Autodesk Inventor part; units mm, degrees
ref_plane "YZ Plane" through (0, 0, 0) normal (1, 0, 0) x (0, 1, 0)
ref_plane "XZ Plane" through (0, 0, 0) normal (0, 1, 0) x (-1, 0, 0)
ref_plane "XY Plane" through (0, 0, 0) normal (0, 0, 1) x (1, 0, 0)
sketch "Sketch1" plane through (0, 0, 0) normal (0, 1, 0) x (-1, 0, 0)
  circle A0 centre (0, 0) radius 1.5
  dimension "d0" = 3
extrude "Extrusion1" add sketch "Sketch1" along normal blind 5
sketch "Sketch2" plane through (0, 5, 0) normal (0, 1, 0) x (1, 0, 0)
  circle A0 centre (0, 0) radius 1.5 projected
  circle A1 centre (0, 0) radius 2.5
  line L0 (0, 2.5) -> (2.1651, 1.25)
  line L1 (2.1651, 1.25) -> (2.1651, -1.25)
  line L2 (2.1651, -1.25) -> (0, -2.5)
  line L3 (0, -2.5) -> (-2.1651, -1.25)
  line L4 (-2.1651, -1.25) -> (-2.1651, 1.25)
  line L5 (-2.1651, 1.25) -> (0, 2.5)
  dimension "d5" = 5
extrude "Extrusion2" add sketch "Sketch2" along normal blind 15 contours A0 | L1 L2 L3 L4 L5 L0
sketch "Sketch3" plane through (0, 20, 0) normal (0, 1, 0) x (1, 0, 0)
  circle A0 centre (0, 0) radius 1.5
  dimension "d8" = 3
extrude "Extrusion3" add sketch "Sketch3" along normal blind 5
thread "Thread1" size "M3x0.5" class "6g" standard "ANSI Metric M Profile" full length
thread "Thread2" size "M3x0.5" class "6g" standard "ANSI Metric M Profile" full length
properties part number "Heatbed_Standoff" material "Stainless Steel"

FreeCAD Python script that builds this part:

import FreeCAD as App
import Part
import Sketcher

V = App.Vector
Q = App.Units.Quantity

doc = App.newDocument("Part")
body = doc.addObject("PartDesign::Body", "Body")

# Sketch on XZ plane
sketch1 = body.newObject("Sketcher::SketchObject", "Sketch")
sketch1.AttachmentSupport = (doc.getObject("XZ_Plane"), [""])
sketch1.MapMode = "FlatFace"
sketch1.addGeometry(Part.Circle(V(0, 0, 0), V(0, 0, 1), 1.5), False)
sketch1.addConstraint(Sketcher.Constraint("Coincident", 0, 3, -1, 1))
sketch1.addConstraint(Sketcher.Constraint("Diameter", 0, Q("3 mm")))
pad1 = body.newObject("PartDesign::Pad", "Pad")
pad1.Profile = sketch1
pad1.Length = 5
pad1.Reversed = True

# Sketch on XZ plane
sketch2 = body.newObject("Sketcher::SketchObject", "Sketch001")
sketch2.AttachmentSupport = (doc.getObject("XZ_Plane"), [""])
sketch2.MapMode = "FlatFace"
sketch2.AttachmentOffset = App.Placement(V(0, 0, -5), App.Rotation())
sketch2.addGeometry(Part.LineSegment(V(2.2, 1.2, 0), V(2.2, -1.2, 0)), False)
sketch2.addGeometry(Part.LineSegment(V(2.2, -1.2, 0), V(0, -2.5, 0)), False)
sketch2.addGeometry(Part.LineSegment(V(0, -2.5, 0), V(-2.2, -1.2, 0)), False)
sketch2.addGeometry(Part.LineSegment(V(-2.2, -1.2, 0), V(-2.2, 1.2, 0)), False)
sketch2.addGeometry(Part.LineSegment(V(-2.2, 1.2, 0), V(0, 2.5, 0)), False)
sketch2.addGeometry(Part.LineSegment(V(0, 2.5, 0), V(2.2, 1.2, 0)), False)
sketch2.addConstraint(Sketcher.Constraint("Coincident", 0, 2, 1, 1))
sketch2.addConstraint(Sketcher.Constraint("Coincident", 1, 2, 2, 1))
sketch2.addConstraint(Sketcher.Constraint("Coincident", 2, 2, 3, 1))
sketch2.addConstraint(Sketcher.Constraint("Coincident", 3, 2, 4, 1))
sketch2.addConstraint(Sketcher.Constraint("Coincident", 4, 2, 5, 1))
sketch2.addConstraint(Sketcher.Constraint("Coincident", 5, 2, 0, 1))
sketch2.addConstraint(Sketcher.Constraint("Vertical", 0))
sketch2.addConstraint(Sketcher.Constraint("Vertical", 3))
sketch2.addConstraint(Sketcher.Constraint("Symmetric", 0, 2, 3, 2, -1, 1))
sketch2.addConstraint(Sketcher.Constraint("Symmetric", 1, 2, 4, 2, -1, 1))
sketch2.addConstraint(Sketcher.Constraint("PointOnObject", 1, 2, -2))
sketch2.addConstraint(Sketcher.Constraint("Parallel", 2, 5))
sketch2.addConstraint(Sketcher.Constraint("Horizontal", 0, 2, 2, 2))
sketch2.addConstraint(Sketcher.Constraint("DistanceY", 1, 2, 4, 2, Q("5 mm")))
sketch2.addConstraint(Sketcher.Constraint("Angle", 1, Q("-150.0004 deg")))
sketch2.addConstraint(Sketcher.Constraint("DistanceY", 0, 2, 0, 1, Q("2.5 mm")))
pad2 = body.newObject("PartDesign::Pad", "Pad001")
pad2.Profile = sketch2
pad2.Length = 15
pad2.Reversed = True

# Sketch on XZ plane
sketch3 = body.newObject("Sketcher::SketchObject", "Sketch002")
sketch3.AttachmentSupport = (doc.getObject("XZ_Plane"), [""])
sketch3.MapMode = "FlatFace"
sketch3.AttachmentOffset = App.Placement(V(0, 0, -20), App.Rotation())
sketch3.addGeometry(Part.Circle(V(0, 0, 0), V(0, 0, 1), 1.5), False)
sketch3.addConstraint(Sketcher.Constraint("Coincident", 0, 3, -1, 1))
sketch3.addConstraint(Sketcher.Constraint("Diameter", 0, Q("3 mm")))
pad3 = body.newObject("PartDesign::Pad", "Pad002")
pad3.Profile = sketch3
pad3.Length = 5
pad3.Reversed = True

doc.recompute()
